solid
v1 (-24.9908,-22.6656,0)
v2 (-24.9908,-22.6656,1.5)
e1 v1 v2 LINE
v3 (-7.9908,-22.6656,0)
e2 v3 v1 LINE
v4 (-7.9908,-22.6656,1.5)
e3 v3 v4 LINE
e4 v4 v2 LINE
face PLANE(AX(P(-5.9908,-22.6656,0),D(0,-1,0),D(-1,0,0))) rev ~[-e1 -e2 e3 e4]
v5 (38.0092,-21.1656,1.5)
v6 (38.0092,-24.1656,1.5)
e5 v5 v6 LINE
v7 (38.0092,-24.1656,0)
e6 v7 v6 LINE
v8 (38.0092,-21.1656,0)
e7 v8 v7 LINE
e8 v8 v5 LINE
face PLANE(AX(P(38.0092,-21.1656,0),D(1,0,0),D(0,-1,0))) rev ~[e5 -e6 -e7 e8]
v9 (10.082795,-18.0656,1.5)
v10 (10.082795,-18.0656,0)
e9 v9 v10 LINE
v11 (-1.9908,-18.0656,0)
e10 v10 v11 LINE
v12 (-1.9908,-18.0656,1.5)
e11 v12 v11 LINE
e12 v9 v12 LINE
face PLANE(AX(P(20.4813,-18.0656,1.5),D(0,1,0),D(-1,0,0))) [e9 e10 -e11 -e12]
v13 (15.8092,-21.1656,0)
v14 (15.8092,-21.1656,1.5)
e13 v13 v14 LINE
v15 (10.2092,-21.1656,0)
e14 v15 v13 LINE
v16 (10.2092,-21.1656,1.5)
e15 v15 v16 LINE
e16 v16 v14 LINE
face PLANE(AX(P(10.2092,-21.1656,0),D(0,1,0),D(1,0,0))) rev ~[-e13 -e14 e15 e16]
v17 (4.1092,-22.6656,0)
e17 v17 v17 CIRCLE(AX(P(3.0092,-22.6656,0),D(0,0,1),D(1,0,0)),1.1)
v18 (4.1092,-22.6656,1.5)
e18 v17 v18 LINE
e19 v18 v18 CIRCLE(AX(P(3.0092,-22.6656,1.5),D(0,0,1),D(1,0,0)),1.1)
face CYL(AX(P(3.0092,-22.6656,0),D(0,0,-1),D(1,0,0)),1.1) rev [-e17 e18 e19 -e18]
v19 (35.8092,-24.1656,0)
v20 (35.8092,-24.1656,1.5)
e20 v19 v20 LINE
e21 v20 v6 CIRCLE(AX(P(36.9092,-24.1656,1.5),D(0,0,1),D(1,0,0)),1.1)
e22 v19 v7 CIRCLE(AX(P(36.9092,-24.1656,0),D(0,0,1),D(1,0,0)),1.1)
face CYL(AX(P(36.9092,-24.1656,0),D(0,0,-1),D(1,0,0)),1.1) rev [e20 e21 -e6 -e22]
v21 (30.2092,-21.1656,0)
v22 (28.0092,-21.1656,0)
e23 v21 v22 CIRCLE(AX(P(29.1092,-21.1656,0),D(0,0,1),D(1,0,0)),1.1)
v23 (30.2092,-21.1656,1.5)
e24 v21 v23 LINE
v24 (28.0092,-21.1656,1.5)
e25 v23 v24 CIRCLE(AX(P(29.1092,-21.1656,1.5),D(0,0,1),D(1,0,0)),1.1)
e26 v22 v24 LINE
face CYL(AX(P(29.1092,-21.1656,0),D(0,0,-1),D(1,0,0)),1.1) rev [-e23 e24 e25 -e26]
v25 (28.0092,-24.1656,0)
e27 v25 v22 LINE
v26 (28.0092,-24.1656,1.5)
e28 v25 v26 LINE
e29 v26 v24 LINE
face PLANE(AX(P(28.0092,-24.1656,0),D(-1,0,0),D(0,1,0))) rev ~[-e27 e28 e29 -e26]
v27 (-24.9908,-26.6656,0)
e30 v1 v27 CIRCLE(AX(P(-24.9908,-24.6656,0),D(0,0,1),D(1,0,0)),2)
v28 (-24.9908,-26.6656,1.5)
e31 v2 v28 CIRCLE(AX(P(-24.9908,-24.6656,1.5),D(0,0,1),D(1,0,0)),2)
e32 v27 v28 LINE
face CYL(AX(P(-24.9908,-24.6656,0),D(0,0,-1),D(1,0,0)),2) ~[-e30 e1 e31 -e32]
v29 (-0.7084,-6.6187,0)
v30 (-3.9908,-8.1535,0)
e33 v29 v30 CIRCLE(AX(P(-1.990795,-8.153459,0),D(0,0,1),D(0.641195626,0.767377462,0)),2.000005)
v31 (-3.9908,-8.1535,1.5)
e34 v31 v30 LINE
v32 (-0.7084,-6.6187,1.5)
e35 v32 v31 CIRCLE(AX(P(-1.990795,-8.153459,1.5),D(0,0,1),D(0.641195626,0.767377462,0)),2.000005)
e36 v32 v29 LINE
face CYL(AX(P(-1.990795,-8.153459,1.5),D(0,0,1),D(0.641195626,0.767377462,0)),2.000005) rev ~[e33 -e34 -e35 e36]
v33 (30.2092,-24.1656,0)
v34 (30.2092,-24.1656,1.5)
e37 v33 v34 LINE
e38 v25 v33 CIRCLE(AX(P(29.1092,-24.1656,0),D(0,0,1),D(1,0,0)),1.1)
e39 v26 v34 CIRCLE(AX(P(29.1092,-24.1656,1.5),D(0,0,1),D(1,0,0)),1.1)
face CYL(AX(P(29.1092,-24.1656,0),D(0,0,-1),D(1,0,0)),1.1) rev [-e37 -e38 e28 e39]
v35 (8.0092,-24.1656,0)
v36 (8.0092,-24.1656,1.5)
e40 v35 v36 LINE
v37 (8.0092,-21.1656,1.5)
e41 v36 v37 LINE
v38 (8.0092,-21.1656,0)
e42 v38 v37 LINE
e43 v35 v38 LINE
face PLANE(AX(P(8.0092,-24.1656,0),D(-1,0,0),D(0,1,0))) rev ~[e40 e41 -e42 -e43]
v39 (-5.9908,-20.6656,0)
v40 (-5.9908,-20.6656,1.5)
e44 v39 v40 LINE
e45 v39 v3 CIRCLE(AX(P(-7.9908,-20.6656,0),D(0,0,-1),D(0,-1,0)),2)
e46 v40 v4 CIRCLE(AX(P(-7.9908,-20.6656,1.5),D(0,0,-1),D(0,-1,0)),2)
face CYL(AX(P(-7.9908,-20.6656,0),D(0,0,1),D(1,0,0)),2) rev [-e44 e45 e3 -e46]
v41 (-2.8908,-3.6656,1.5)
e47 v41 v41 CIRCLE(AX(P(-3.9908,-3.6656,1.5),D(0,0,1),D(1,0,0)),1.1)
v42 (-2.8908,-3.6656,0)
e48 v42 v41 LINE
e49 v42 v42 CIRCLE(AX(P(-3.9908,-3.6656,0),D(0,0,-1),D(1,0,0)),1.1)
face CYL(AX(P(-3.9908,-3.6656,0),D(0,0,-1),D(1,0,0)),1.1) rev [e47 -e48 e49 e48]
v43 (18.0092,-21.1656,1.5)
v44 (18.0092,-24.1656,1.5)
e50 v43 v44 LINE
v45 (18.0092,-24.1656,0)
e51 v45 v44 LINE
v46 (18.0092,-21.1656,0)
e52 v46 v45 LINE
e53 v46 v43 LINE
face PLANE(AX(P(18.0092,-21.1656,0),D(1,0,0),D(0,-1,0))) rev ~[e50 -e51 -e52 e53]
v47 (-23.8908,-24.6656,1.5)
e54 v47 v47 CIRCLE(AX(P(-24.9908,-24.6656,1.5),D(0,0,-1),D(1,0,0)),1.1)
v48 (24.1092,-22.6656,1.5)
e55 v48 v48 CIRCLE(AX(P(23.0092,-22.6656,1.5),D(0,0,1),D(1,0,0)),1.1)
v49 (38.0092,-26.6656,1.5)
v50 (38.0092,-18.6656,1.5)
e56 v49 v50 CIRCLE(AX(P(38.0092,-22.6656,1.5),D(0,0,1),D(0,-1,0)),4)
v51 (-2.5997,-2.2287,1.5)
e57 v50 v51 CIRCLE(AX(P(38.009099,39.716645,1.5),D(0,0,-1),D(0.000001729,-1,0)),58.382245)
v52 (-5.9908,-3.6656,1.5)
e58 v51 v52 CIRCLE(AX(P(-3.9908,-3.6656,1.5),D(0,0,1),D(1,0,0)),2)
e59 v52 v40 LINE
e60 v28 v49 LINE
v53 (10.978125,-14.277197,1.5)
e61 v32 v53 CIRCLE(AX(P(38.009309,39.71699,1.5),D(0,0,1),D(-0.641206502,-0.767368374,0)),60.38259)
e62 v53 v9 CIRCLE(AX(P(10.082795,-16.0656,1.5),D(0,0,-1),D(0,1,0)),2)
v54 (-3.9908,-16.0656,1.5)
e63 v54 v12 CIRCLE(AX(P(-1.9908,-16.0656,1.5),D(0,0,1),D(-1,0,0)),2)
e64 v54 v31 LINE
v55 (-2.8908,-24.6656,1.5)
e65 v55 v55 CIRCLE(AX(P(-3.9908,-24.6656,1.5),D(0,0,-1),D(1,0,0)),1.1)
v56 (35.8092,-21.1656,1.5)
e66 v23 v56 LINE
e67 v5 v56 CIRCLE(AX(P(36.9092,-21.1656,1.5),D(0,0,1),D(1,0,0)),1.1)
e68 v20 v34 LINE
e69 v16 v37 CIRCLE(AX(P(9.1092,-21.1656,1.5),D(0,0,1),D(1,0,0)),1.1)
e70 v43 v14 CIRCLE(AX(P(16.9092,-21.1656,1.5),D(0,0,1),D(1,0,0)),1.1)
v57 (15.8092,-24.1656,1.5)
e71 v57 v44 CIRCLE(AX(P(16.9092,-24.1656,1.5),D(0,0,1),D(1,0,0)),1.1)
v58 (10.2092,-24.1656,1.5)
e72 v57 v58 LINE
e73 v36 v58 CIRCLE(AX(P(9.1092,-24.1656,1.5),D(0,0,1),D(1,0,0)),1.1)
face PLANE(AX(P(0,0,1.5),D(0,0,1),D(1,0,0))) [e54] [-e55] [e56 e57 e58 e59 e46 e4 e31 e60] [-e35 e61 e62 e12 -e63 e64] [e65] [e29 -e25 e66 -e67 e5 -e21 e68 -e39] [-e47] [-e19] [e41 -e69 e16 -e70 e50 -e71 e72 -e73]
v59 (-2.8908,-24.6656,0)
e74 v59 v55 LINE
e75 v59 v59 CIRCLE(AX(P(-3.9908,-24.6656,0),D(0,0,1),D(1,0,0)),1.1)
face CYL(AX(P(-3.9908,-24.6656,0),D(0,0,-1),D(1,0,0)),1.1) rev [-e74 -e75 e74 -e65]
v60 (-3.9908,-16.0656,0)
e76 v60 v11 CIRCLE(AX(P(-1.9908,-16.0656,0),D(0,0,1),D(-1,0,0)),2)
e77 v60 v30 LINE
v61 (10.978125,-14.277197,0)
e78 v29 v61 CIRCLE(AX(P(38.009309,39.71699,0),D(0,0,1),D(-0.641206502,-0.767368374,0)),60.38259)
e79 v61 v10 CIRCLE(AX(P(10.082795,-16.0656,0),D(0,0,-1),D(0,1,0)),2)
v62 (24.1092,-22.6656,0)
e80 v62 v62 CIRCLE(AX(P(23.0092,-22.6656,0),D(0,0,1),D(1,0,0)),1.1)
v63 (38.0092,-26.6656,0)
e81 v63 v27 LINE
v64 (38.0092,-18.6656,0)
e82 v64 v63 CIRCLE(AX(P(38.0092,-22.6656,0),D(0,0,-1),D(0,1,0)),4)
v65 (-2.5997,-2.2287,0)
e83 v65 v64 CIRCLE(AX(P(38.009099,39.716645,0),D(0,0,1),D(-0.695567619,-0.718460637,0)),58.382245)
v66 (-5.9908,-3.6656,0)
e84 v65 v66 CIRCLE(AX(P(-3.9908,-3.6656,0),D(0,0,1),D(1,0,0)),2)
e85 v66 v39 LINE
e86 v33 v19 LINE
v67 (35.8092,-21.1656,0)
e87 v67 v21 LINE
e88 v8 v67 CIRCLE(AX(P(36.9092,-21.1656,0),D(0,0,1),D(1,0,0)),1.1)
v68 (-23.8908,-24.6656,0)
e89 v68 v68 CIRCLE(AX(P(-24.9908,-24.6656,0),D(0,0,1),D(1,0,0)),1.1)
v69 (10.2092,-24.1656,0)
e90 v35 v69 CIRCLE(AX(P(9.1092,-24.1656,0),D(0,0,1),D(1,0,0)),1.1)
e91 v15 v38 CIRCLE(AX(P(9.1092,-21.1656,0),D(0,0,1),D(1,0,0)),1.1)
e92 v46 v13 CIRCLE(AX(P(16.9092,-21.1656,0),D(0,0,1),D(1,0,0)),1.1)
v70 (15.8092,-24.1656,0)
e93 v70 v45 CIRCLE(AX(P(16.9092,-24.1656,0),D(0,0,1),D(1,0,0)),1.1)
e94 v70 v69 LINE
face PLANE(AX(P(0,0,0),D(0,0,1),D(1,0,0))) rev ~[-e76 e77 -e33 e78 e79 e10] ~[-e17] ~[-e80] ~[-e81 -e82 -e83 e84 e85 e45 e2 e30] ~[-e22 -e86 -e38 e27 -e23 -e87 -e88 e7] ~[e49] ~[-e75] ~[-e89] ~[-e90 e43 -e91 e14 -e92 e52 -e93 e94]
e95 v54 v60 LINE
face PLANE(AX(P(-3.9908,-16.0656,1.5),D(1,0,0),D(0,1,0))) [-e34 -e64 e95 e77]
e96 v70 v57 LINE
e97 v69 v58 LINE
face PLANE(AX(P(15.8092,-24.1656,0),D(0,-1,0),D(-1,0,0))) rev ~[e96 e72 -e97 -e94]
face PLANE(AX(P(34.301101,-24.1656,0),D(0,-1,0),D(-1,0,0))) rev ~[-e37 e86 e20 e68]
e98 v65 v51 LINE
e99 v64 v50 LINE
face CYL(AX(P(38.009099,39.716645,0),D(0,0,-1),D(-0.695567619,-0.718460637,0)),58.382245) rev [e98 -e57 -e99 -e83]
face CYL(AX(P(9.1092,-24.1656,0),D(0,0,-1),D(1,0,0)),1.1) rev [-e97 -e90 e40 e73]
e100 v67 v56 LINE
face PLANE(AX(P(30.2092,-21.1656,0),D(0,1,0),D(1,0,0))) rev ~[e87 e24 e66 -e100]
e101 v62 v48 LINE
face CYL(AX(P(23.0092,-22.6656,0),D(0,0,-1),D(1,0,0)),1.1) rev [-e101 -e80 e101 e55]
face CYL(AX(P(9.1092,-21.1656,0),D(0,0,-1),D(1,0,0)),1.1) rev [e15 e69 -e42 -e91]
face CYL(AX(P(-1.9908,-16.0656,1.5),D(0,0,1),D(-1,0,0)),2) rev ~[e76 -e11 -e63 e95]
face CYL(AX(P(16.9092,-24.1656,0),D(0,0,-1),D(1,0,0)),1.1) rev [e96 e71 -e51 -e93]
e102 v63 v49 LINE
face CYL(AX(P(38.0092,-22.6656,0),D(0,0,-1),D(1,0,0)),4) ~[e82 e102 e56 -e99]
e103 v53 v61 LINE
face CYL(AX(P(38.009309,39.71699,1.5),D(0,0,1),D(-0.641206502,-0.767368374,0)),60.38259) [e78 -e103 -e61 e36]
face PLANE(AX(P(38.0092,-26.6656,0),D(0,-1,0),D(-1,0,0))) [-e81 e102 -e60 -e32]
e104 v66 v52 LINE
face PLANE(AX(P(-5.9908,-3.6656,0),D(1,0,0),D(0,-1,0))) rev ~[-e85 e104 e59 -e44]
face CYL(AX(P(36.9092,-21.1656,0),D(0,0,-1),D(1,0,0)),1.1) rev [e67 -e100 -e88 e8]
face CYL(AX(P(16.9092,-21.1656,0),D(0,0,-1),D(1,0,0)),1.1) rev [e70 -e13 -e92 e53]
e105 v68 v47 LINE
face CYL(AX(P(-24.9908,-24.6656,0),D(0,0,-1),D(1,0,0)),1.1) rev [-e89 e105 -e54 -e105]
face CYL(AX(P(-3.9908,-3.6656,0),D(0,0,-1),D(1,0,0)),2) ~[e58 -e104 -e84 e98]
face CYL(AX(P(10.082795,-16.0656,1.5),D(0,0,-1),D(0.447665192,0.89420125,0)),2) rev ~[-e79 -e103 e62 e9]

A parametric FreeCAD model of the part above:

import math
import FreeCAD as App
import Part
import Sketcher


def edges_at(feature, points):
    """Names of the edges that pass closest to the given points."""
    edges = feature.Shape.Edges
    near = lambda p: min(range(len(edges)), key=lambda i: edges[i].distToShape(Part.Vertex(*p))[0])
    return sorted({f"Edge{near(p) + 1}" for p in points})

doc = App.newDocument("Part")
body = doc.addObject("PartDesign::Body", "Body")

# Sketch on XY plane
sketch1 = doc.addObject("Sketcher::SketchObject", "Sketch")
body.addObject(sketch1)
sketch1.AttachmentSupport = (doc.XY_Plane, [""])
sketch1.MapMode = "FlatFace"
sketch1.addGeometry(Part.ArcOfCircle(Part.Circle(App.Vector(-4, -3.7, 0), App.Vector(0, 0, 1), 2), math.radians(46), math.radians(180)), False)
sketch1.addGeometry(Part.LineSegment(App.Vector(-6, -3.7, 0), App.Vector(-6, -22.7, 0)), False)
sketch1.addGeometry(Part.LineSegment(App.Vector(-6, -22.7, 0), App.Vector(-25, -22.7, 0)), False)
sketch1.addGeometry(Part.ArcOfCircle(Part.Circle(App.Vector(-25, -24.7, 0), App.Vector(0, 0, 1), 2), math.radians(90), math.radians(270)), False)
sketch1.addGeometry(Part.LineSegment(App.Vector(-25, -26.7, 0), App.Vector(38, -26.7, 0)), False)
sketch1.addGeometry(Part.ArcOfCircle(Part.Circle(App.Vector(38, -22.7, 0), App.Vector(0, 0, 1), 4), math.radians(-90), math.radians(90)), False)
sketch1.addGeometry(Part.ArcOfCircle(Part.Circle(App.Vector(38, 39.7, 0), App.Vector(0, 0, 1), 58.4), math.radians(-134), math.radians(-90)), False)
sketch1.addGeometry(Part.Circle(App.Vector(-4, -3.7, 0), App.Vector(0, 0, 1), 1.1), False)
sketch1.addGeometry(Part.ArcOfCircle(Part.Circle(App.Vector(9.1, -24.2, 0), App.Vector(0, 0, 1), 1.1), math.radians(180), math.radians(360)), False)
sketch1.addGeometry(Part.LineSegment(App.Vector(8, -24.2, 0), App.Vector(8, -21.2, 0)), False)
sketch1.addGeometry(Part.ArcOfCircle(Part.Circle(App.Vector(9.1, -21.2, 0), App.Vector(0, 0, 1), 1.1), math.radians(0), math.radians(180)), False)
sketch1.addGeometry(Part.LineSegment(App.Vector(10.2, -21.2, 0), App.Vector(15.8, -21.2, 0)), False)
sketch1.addGeometry(Part.ArcOfCircle(Part.Circle(App.Vector(16.9, -21.2, 0), App.Vector(0, 0, 1), 1.1), math.radians(0), math.radians(180)), False)
sketch1.addGeometry(Part.LineSegment(App.Vector(18, -21.2, 0), App.Vector(18, -24.2, 0)), False)
sketch1.addGeometry(Part.ArcOfCircle(Part.Circle(App.Vector(16.9, -24.2, 0), App.Vector(0, 0, 1), 1.1), math.radians(180), math.radians(360)), False)
sketch1.addGeometry(Part.LineSegment(App.Vector(15.8, -24.2, 0), App.Vector(10.2, -24.2, 0)), False)
sketch1.addGeometry(Part.LineSegment(App.Vector(30.2, -21.2, 0), App.Vector(35.8, -21.2, 0)), False)
sketch1.addGeometry(Part.ArcOfCircle(Part.Circle(App.Vector(36.9, -21.2, 0), App.Vector(0, 0, 1), 1.1), math.radians(0), math.radians(180)), False)
sketch1.addGeometry(Part.LineSegment(App.Vector(38, -21.2, 0), App.Vector(38, -24.2, 0)), False)
sketch1.addGeometry(Part.ArcOfCircle(Part.Circle(App.Vector(36.9, -24.2, 0), App.Vector(0, 0, 1), 1.1), math.radians(180), math.radians(360)), False)
sketch1.addGeometry(Part.LineSegment(App.Vector(35.8, -24.2, 0), App.Vector(30.2, -24.2, 0)), False)
sketch1.addGeometry(Part.ArcOfCircle(Part.Circle(App.Vector(29.1, -24.2, 0), App.Vector(0, 0, 1), 1.1), math.radians(180), math.radians(360)), False)
sketch1.addGeometry(Part.LineSegment(App.Vector(28, -24.2, 0), App.Vector(28, -21.2, 0)), False)
sketch1.addGeometry(Part.ArcOfCircle(Part.Circle(App.Vector(29.1, -21.2, 0), App.Vector(0, 0, 1), 1.1), math.radians(0), math.radians(180)), False)
sketch1.addGeometry(Part.Circle(App.Vector(23, -22.7, 0), App.Vector(0, 0, 1), 1.1), False)
sketch1.addGeometry(Part.Circle(App.Vector(3, -22.7, 0), App.Vector(0, 0, 1), 1.1), False)
sketch1.addGeometry(Part.Circle(App.Vector(-4, -24.7, 0), App.Vector(0, 0, 1), 1.1), False)
sketch1.addGeometry(Part.Circle(App.Vector(-25, -24.7, 0), App.Vector(0, 0, 1), 1.1), False)
sketch1.addConstraint(Sketcher.Constraint("Tangent", 0, 2, 1, 1))
sketch1.addConstraint(Sketcher.Constraint("Coincident", 1, 2, 2, 1))
sketch1.addConstraint(Sketcher.Constraint("Tangent", 2, 2, 3, 1))
sketch1.addConstraint(Sketcher.Constraint("Tangent", 3, 2, 4, 1))
sketch1.addConstraint(Sketcher.Constraint("Tangent", 4, 2, 5, 1))
sketch1.addConstraint(Sketcher.Constraint("Tangent", 5, 2, 6, 2))
sketch1.addConstraint(Sketcher.Constraint("Tangent", 6, 1, 0, 1))
sketch1.addConstraint(Sketcher.Constraint("Tangent", 8, 1, 9, 1))
sketch1.addConstraint(Sketcher.Constraint("Tangent", 9, 2, 10, 2))
sketch1.addConstraint(Sketcher.Constraint("Coincident", 10, 1, 11, 1))
sketch1.addConstraint(Sketcher.Constraint("Coincident", 11, 2, 12, 2))
sketch1.addConstraint(Sketcher.Constraint("Tangent", 12, 1, 13, 1))
sketch1.addConstraint(Sketcher.Constraint("Tangent", 13, 2, 14, 2))
sketch1.addConstraint(Sketcher.Constraint("Coincident", 14, 1, 15, 1))
sketch1.addConstraint(Sketcher.Constraint("Coincident", 15, 2, 8, 2))
sketch1.addConstraint(Sketcher.Constraint("Coincident", 16, 2, 17, 2))
sketch1.addConstraint(Sketcher.Constraint("Tangent", 17, 1, 18, 1))
sketch1.addConstraint(Sketcher.Constraint("Tangent", 18, 2, 19, 2))
sketch1.addConstraint(Sketcher.Constraint("Coincident", 19, 1, 20, 1))
sketch1.addConstraint(Sketcher.Constraint("Coincident", 20, 2, 21, 2))
sketch1.addConstraint(Sketcher.Constraint("Tangent", 21, 1, 22, 1))
sketch1.addConstraint(Sketcher.Constraint("Tangent", 22, 2, 23, 2))
sketch1.addConstraint(Sketcher.Constraint("Coincident", 23, 1, 16, 1))
sketch1.addConstraint(Sketcher.Constraint("Vertical", 1))
sketch1.addConstraint(Sketcher.Constraint("Horizontal", 2))
sketch1.addConstraint(Sketcher.Constraint("Horizontal", 4))
sketch1.addConstraint(Sketcher.Constraint("Vertical", 9))
sketch1.addConstraint(Sketcher.Constraint("Horizontal", 11))
sketch1.addConstraint(Sketcher.Constraint("Vertical", 13))
sketch1.addConstraint(Sketcher.Constraint("Horizontal", 15))
sketch1.addConstraint(Sketcher.Constraint("Horizontal", 16))
sketch1.addConstraint(Sketcher.Constraint("Vertical", 18))
sketch1.addConstraint(Sketcher.Constraint("Horizontal", 20))
sketch1.addConstraint(Sketcher.Constraint("Vertical", 22))
sketch1.addConstraint(Sketcher.Constraint("Coincident", 7, 3, 0, 3))
sketch1.addConstraint(Sketcher.Constraint("Coincident", 27, 3, 3, 3))
sketch1.addConstraint(Sketcher.Constraint("Equal", 0, 3))
sketch1.addConstraint(Sketcher.Constraint("Equal", 7, 8))
sketch1.addConstraint(Sketcher.Constraint("Equal", 8, 10))
sketch1.addConstraint(Sketcher.Constraint("Equal", 10, 12))
sketch1.addConstraint(Sketcher.Constraint("Equal", 12, 14))
sketch1.addConstraint(Sketcher.Constraint("Equal", 14, 17))
sketch1.addConstraint(Sketcher.Constraint("Equal", 17, 19))
sketch1.addConstraint(Sketcher.Constraint("Equal", 19, 21))
sketch1.addConstraint(Sketcher.Constraint("Equal", 21, 23))
sketch1.addConstraint(Sketcher.Constraint("Equal", 23, 24))
sketch1.addConstraint(Sketcher.Constraint("Equal", 24, 25))
sketch1.addConstraint(Sketcher.Constraint("Equal", 25, 26))
sketch1.addConstraint(Sketcher.Constraint("Equal", 26, 27))
sketch1.addConstraint(Sketcher.Constraint("Horizontal", 10, 3, 12, 3))
sketch1.addConstraint(Sketcher.Constraint("Horizontal", 8, 3, 14, 3))
sketch1.addConstraint(Sketcher.Constraint("Horizontal", 12, 3, 17, 3))
sketch1.addConstraint(Sketcher.Constraint("Horizontal", 14, 3, 19, 3))
sketch1.addConstraint(Sketcher.Constraint("Horizontal", 19, 3, 21, 3))
sketch1.addConstraint(Sketcher.Constraint("Horizontal", 17, 3, 23, 3))
sketch1.addConstraint(Sketcher.Constraint("Horizontal", 5, 3, 24, 3))
sketch1.addConstraint(Sketcher.Constraint("Horizontal", 24, 3, 25, 3))
sketch1.addConstraint(Sketcher.Constraint("Horizontal", 3, 3, 26, 3))
sketch1.addConstraint(Sketcher.Constraint("Horizontal", 25, 3, 1, 2))
sketch1.addConstraint(Sketcher.Constraint("Horizontal", 9, 2, 10, 1))
sketch1.addConstraint(Sketcher.Constraint("Horizontal", 13, 2, 14, 1))
sketch1.addConstraint(Sketcher.Constraint("Horizontal", 12, 1, 16, 2))
sketch1.addConstraint(Sketcher.Constraint("Horizontal", 18, 2, 19, 1))
sketch1.addConstraint(Sketcher.Constraint("Vertical", 5, 3, 6, 3))
sketch1.addConstraint(Sketcher.Constraint("Vertical", 7, 3, 26, 3))
sketch1.addConstraint(Sketcher.Constraint("Vertical", 5, 2, 17, 1))
sketch1.addConstraint(Sketcher.Constraint("Equal", 15, 16))
sketch1.addConstraint(Sketcher.Constraint("Equal", 2, 1))
sketch1.addConstraint(Sketcher.Constraint("Radius", 0, 2.0))
sketch1.addConstraint(Sketcher.Constraint("Diameter", 7, 2.2))
sketch1.addConstraint(Sketcher.Constraint("DistanceY", 9, 1, 9, 2, 3.0))
sketch1.addConstraint(Sketcher.Constraint("DistanceX", 3, 3, 0, 3, 21.0))
sketch1.addConstraint(Sketcher.Constraint("DistanceY", 4, 2, 19, 3, 2.5))
sketch1.addConstraint(Sketcher.Constraint("DistanceX", 4, 1, 4, 2, 63.0))
sketch1.addConstraint(Sketcher.Constraint("DistanceX", 11, 1, 11, 2, 5.6))
sketch1.addConstraint(Sketcher.Constraint("DistanceX", 12, 3, 17, 3, 20.0))
sketch1.addConstraint(Sketcher.Constraint("DistanceX", 25, 3, 24, 3, 20.0))
sketch1.addConstraint(Sketcher.Constraint("DistanceX", 26, 3, 25, 3, 7.0))
sketch1.addConstraint(Sketcher.Constraint("DistanceX", 0, 3, -1, 1, 3.9908))
sketch1.addConstraint(Sketcher.Constraint("DistanceY", 0, 3, -1, 1, 3.6656))
pad1 = doc.addObject("PartDesign::Pad", "Pad")
body.addObject(pad1)
pad1.Profile = sketch1
pad1.Length = 1.5
doc.recompute()

fillet = doc.addObject("PartDesign::Fillet", "Fillet")
body.addObject(fillet)
fillet.Base = (pad1, edges_at(pad1, [(-5.991, -22.666, 0.75)]))
fillet.Radius = 2

# Sketch on XY plane
sketch2 = doc.addObject("Sketcher::SketchObject", "Sketch001")
body.addObject(sketch2)
sketch2.AttachmentSupport = (doc.XY_Plane, [""])
sketch2.MapMode = "FlatFace"
sketch2.AttachmentOffset = App.Placement(App.Vector(0, 0, 1.5), App.Rotation())
sketch2.addGeometry(Part.LineSegment(App.Vector(-2, -18.1, 0), App.Vector(20.5, -18.1, 0)), False)
sketch2.addGeometry(Part.ArcOfCircle(Part.Circle(App.Vector(38, 39.7, 0), App.Vector(0, 0, 1), 60.4), math.radians(-130), math.radians(-107)), False)
sketch2.addGeometry(Part.ArcOfCircle(Part.Circle(App.Vector(-2, -8.2, 0), App.Vector(0, 0, 1), 2), math.radians(50), math.radians(180)), False)
sketch2.addGeometry(Part.LineSegment(App.Vector(-4, -8.2, 0), App.Vector(-4, -16.1, 0)), False)
sketch2.addGeometry(Part.ArcOfCircle(Part.Circle(App.Vector(-2, -16.1, 0), App.Vector(0, 0, 1), 2), math.radians(180), math.radians(270)), False)
sketch2.addConstraint(Sketcher.Constraint("Coincident", 0, 2, 1, 2))
sketch2.addConstraint(Sketcher.Constraint("Tangent", 1, 1, 2, 1))
sketch2.addConstraint(Sketcher.Constraint("Tangent", 2, 2, 3, 1))
sketch2.addConstraint(Sketcher.Constraint("Tangent", 3, 2, 4, 1))
sketch2.addConstraint(Sketcher.Constraint("Tangent", 4, 2, 0, 1))
sketch2.addConstraint(Sketcher.Constraint("Horizontal", 0))
sketch2.addConstraint(Sketcher.Constraint("Vertical", 3))
sketch2.addConstraint(Sketcher.Constraint("Equal", 2, 4))
sketch2.addConstraint(Sketcher.Constraint("Radius", 2, 2.0))
sketch2.addConstraint(Sketcher.Constraint("DistanceX", 2, 3, 1, 3, 40.0))
sketch2.addConstraint(Sketcher.Constraint("Radius", 1, 60.3824))
sketch2.addConstraint(Sketcher.Constraint("DistanceX", 0, 1, 0, 2, 22.472))
sketch2.addConstraint(Sketcher.Constraint("DistanceX", -1, 1, 1, 3, 38.0092))
sketch2.addConstraint(Sketcher.Constraint("DistanceY", -1, 1, 1, 3, 39.7168))
pocket1 = doc.addObject("PartDesign::Pocket", "Pocket")
body.addObject(pocket1)
pocket1.Profile = sketch2
pocket1.Length = 1.5
doc.recompute()

fillet2 = doc.addObject("PartDesign::Fillet", "Fillet001")
body.addObject(fillet2)
fillet2.Base = (pocket1, edges_at(pocket1, [(20.481, -18.066, 0.75)]))
fillet2.Radius = 2

doc.recompute()
